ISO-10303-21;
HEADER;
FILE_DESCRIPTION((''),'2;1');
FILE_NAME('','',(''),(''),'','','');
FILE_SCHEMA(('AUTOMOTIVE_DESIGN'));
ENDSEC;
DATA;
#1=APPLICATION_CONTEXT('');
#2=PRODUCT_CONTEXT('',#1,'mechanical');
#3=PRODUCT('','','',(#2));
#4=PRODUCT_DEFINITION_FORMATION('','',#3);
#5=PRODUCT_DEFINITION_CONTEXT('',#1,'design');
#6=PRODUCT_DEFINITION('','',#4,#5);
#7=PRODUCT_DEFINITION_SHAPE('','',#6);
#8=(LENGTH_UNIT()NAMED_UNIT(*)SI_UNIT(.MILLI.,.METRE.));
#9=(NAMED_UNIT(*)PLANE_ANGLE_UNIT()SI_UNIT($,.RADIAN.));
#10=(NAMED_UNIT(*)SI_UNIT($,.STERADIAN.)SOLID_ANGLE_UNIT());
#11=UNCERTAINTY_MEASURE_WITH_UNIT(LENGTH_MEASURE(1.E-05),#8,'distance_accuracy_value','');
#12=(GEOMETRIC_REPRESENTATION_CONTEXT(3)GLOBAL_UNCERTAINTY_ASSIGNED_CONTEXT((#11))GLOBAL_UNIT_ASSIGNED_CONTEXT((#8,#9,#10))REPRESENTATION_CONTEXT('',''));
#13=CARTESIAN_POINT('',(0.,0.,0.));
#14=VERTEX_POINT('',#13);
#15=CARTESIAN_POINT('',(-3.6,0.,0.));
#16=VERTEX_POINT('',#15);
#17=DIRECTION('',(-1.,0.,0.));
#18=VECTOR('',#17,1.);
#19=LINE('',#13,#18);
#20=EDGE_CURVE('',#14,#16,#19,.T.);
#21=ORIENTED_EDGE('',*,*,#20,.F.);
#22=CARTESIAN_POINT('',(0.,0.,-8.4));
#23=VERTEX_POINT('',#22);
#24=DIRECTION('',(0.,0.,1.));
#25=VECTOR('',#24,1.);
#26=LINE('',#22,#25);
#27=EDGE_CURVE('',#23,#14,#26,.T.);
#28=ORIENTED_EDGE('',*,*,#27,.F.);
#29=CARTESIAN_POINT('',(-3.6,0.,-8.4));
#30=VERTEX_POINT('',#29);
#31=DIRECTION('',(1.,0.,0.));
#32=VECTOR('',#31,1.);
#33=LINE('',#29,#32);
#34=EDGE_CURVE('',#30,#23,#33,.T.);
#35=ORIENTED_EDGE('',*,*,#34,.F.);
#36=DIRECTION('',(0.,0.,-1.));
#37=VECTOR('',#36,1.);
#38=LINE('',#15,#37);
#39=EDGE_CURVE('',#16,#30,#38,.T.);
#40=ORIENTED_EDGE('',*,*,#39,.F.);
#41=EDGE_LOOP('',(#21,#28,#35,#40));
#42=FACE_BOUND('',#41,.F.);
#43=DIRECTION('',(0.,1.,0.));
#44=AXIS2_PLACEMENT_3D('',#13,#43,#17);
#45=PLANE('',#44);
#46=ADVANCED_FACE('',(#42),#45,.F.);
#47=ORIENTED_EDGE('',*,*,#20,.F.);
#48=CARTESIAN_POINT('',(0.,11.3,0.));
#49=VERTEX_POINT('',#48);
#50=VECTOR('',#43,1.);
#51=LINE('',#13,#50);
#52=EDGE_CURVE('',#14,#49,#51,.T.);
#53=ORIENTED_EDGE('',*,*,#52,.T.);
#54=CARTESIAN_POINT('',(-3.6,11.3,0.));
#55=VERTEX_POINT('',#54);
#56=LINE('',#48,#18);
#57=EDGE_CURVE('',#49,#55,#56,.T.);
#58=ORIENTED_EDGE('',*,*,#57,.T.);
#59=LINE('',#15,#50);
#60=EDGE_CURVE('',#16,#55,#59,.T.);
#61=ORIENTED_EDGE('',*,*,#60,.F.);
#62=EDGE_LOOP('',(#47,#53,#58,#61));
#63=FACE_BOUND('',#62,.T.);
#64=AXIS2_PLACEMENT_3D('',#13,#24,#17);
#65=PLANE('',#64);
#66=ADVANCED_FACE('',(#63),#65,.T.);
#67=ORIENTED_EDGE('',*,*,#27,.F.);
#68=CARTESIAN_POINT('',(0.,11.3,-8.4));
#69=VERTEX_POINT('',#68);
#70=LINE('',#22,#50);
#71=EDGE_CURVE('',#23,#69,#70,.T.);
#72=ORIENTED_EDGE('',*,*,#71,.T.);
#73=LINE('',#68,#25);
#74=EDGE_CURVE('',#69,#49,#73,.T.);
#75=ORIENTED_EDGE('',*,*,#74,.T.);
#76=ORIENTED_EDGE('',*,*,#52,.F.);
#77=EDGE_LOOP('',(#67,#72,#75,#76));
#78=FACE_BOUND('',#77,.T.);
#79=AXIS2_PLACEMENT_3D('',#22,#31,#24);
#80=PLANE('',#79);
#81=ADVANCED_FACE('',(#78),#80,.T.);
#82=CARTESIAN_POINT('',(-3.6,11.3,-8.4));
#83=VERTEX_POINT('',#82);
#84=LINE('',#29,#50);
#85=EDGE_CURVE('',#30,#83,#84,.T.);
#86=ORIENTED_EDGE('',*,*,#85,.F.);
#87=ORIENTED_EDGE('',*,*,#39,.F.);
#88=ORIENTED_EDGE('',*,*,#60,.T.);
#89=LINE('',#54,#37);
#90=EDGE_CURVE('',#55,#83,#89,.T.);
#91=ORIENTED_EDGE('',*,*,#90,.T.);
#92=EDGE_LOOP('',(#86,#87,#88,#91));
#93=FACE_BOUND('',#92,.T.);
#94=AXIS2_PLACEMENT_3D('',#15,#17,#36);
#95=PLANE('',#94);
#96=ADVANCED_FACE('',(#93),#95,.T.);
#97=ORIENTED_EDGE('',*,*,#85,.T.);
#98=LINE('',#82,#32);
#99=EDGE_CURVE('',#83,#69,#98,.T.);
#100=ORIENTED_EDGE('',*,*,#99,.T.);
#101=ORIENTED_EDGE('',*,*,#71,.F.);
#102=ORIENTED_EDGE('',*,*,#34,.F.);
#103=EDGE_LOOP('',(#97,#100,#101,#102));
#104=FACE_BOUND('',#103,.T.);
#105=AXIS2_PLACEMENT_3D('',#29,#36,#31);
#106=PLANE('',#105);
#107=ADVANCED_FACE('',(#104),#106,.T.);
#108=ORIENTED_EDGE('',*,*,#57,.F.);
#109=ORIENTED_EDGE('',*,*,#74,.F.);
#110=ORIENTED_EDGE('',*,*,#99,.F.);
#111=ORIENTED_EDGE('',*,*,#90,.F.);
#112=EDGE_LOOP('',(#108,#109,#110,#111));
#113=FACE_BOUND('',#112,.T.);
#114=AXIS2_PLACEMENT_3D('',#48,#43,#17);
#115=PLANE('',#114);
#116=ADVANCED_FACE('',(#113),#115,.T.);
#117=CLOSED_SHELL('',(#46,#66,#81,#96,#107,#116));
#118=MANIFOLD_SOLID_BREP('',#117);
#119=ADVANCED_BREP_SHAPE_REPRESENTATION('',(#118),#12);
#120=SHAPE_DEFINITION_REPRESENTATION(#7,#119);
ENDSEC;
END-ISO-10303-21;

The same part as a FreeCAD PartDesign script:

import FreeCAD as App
import Part
import Sketcher
from FreeCAD import Vector
Q = App.Units.Quantity


def add_polygon(sketch, points):
    """Adds a closed chain of lines whose ends are joined by coincident constraints."""
    first, n = sketch.GeometryCount, len(points)
    for a, b in zip(points, points[1:] + points[:1]):
        sketch.addGeometry(Part.LineSegment(App.Vector(*a, 0), App.Vector(*b, 0)), False)
    for i in range(n):
        sketch.addConstraint(Sketcher.Constraint("Coincident", first + i, 2, first + (i + 1) % n, 1))

doc = App.newDocument("Part")
params = doc.addObject("Spreadsheet::Sheet", "Params")
for row, (alias, value) in enumerate([
    ("sketch1_width", "3.6 mm"),
    ("sketch1_height", "8.4 mm"),
    ("pad1_length", "11.3 mm"),
], start=1):
    params.set(f"A{row}", alias)
    params.set(f"B{row}", "=" + value)
    params.setAlias(f"B{row}", alias)

body = doc.addObject("PartDesign::Body", "Body")

# Sketch on XZ plane
sketch1 = body.newObject("Sketcher::SketchObject", "Sketch")
sketch1.AttachmentSupport = (doc.getObject("XZ_Plane"), [""])
sketch1.MapMode = "FlatFace"
add_polygon(sketch1, [(-3.6, 0), (0, 0), (0, -8.4), (-3.6, -8.4)])  # lines 0-3
sketch1.addConstraint(Sketcher.Constraint("Horizontal", 0))
sketch1.addConstraint(Sketcher.Constraint("Vertical", 1))
sketch1.addConstraint(Sketcher.Constraint("Horizontal", 2))
sketch1.addConstraint(Sketcher.Constraint("Vertical", 3))
sketch1.addConstraint(Sketcher.Constraint("Coincident", 0, 2, -1, 1))
sketch1.addConstraint(Sketcher.Constraint("DistanceX", 0, 1, 0, 2, Q("3.6 mm")))
sketch1.addConstraint(Sketcher.Constraint("DistanceY", 1, 2, 1, 1, Q("8.4 mm")))
sketch1.setExpression("Constraints[9]", "Params.sketch1_width")
sketch1.setExpression("Constraints[10]", "Params.sketch1_height")
pad1 = body.newObject("PartDesign::Pad", "Pad")
pad1.Profile = sketch1
pad1.setExpression("Length", "Params.pad1_length")
pad1.Reversed = True

doc.recompute()
